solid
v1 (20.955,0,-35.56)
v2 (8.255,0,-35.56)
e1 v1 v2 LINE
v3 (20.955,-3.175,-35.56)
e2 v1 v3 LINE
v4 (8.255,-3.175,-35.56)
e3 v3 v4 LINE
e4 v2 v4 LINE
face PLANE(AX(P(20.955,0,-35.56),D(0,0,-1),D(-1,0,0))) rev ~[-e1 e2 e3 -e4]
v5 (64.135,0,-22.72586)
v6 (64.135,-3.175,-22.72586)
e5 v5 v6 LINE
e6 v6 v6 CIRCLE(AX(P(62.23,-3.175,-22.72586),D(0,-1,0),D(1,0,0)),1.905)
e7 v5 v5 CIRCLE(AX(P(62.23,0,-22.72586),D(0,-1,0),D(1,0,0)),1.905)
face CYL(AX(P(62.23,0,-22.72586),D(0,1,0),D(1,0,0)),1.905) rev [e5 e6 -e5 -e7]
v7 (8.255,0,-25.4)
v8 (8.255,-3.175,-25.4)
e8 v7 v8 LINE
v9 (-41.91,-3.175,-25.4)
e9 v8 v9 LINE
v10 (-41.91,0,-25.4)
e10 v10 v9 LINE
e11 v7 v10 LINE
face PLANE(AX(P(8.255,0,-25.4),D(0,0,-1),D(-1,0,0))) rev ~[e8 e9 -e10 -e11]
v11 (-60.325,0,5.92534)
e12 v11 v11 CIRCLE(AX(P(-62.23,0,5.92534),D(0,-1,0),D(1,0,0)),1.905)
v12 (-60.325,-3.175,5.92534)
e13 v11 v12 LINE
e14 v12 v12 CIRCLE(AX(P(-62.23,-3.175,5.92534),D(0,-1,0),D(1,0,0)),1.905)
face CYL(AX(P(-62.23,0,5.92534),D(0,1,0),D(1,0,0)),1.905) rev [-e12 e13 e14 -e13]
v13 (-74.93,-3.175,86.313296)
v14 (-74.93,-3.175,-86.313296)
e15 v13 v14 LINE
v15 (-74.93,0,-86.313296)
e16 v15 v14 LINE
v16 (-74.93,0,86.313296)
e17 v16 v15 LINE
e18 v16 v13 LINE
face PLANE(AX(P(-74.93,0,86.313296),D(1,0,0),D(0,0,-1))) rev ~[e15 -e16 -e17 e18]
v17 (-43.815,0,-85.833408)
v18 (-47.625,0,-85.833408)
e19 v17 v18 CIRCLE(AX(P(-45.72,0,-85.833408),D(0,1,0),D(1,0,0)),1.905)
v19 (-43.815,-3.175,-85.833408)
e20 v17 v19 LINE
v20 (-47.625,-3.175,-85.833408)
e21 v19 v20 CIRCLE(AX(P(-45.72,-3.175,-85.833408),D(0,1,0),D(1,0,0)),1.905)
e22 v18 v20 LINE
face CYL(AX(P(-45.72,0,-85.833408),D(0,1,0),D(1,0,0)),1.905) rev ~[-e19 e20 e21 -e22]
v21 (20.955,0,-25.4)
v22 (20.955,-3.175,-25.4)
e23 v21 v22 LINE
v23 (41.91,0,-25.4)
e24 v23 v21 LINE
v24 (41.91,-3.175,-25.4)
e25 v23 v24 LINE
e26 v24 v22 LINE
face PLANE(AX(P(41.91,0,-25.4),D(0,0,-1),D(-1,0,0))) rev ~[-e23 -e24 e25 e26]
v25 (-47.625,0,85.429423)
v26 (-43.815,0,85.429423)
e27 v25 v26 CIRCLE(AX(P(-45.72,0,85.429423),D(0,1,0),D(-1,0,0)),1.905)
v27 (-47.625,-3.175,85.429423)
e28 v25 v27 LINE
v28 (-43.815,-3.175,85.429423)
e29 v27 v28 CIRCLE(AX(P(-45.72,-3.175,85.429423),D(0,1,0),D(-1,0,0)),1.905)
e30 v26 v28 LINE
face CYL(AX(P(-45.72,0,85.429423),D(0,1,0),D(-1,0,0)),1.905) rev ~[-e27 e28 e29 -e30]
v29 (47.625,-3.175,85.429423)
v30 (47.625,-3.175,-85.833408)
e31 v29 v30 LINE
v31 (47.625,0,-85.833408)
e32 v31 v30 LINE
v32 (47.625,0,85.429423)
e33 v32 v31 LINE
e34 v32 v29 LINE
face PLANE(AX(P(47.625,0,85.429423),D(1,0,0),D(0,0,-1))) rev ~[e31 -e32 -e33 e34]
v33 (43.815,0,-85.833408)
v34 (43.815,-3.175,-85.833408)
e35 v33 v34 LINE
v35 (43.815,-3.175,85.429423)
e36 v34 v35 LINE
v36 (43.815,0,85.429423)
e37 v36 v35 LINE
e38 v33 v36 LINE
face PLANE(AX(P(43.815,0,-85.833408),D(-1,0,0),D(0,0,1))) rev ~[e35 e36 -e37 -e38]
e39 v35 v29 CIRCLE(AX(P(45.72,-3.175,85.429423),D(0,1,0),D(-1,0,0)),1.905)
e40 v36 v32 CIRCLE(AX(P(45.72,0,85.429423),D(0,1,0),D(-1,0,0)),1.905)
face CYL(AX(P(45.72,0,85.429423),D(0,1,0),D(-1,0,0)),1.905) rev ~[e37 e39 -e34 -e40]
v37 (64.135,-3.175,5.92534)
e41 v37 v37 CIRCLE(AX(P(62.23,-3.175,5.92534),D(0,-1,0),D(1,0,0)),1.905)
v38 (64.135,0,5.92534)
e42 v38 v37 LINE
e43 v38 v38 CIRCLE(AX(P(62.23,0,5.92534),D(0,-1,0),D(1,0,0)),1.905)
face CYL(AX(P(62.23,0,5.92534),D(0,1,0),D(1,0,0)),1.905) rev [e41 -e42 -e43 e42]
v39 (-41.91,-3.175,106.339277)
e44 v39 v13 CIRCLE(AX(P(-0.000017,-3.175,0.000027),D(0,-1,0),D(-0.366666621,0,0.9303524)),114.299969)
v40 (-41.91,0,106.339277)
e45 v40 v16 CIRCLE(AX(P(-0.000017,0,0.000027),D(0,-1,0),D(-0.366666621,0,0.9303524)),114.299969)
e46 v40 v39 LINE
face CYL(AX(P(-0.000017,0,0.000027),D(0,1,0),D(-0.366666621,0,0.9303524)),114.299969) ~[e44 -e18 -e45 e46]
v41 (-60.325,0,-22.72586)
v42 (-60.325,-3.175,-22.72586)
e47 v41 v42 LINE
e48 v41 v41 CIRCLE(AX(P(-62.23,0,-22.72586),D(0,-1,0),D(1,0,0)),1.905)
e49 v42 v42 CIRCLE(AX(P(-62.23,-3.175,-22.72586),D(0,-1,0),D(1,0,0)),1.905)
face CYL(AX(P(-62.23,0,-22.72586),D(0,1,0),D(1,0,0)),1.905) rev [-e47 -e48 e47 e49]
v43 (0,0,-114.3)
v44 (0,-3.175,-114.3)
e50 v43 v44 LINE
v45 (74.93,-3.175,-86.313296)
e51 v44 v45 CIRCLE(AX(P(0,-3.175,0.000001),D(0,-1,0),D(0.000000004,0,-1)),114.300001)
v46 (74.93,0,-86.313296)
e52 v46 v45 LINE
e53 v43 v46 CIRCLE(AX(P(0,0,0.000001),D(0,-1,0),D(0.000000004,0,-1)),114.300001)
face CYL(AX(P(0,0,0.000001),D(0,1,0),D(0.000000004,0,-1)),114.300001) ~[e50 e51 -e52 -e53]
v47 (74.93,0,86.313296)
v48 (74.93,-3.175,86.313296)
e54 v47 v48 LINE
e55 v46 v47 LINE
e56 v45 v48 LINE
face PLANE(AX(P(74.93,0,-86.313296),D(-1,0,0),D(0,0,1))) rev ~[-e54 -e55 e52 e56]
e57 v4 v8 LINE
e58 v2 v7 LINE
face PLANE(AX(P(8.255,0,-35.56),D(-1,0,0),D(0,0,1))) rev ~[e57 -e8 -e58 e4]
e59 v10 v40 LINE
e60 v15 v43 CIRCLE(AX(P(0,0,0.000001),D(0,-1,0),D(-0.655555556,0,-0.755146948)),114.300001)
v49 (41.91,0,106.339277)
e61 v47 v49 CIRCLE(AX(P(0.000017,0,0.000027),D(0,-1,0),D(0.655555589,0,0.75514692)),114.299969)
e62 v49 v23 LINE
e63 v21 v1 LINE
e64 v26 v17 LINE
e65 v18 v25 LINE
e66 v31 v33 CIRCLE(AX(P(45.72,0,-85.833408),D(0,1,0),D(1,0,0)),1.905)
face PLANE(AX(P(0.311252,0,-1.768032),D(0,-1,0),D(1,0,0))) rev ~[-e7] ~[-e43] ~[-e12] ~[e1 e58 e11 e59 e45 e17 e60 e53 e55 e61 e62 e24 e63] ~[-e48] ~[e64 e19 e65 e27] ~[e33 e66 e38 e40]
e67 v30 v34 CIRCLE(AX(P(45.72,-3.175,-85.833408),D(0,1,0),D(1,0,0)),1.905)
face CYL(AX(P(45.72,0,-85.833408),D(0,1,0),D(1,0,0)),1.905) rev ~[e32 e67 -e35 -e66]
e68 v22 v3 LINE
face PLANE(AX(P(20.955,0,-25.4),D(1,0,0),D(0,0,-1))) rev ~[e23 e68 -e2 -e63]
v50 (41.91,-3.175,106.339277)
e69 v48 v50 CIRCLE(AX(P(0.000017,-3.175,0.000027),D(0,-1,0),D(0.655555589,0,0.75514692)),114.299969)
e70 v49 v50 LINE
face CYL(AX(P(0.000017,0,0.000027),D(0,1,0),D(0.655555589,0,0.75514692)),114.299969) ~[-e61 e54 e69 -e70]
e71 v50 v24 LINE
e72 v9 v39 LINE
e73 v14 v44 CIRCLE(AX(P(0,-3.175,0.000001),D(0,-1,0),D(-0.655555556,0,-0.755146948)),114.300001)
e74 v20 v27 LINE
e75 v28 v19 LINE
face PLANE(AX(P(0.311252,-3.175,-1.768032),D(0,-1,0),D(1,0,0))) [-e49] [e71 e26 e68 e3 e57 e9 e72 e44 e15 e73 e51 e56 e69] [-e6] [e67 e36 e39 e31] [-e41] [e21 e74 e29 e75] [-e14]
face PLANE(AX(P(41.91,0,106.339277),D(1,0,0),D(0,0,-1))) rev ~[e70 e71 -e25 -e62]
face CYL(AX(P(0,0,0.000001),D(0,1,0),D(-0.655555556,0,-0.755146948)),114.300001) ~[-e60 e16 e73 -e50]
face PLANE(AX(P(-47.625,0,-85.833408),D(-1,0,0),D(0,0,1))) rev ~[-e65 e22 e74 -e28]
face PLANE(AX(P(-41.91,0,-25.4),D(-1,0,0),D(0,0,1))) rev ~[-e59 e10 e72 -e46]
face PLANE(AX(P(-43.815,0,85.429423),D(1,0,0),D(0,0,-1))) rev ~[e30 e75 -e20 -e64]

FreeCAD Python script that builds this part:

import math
import FreeCAD as App
import Part
import Sketcher
Q = App.Units.Quantity

doc = App.newDocument("Part")
body = doc.addObject("PartDesign::Body", "Body")

# Sketch on XZ plane
sketch1 = doc.addObject("Sketcher::SketchObject", "Sketch")
body.addObject(sketch1)
sketch1.AttachmentSupport = (doc.XZ_Plane, [""])
sketch1.MapMode = "FlatFace"
sketch1.addGeometry([
    Part.LineSegment(App.Vector(-41.91, -25.4, 0), App.Vector(-41.91, 106.339277, 0)),  # 0
    Part.ArcOfCircle(Part.Circle(App.Vector(-0.000017, 0.000027, 0), App.Vector(0, 0, 1), 114.299969), math.radians(111.510185), math.radians(130.961791)),  # 1
    Part.LineSegment(App.Vector(-74.93, 86.313296, 0), App.Vector(-74.93, -86.313296, 0)),  # 2
    Part.ArcOfCircle(Part.Circle(App.Vector(0, 0.000001, 0), App.Vector(0, 0, 1), 114.300001), math.radians(-130.961789), math.radians(-90)),  # 3
    Part.ArcOfCircle(Part.Circle(App.Vector(0, 0.000001, 0), App.Vector(0, 0, 1), 114.300001), math.radians(-90), math.radians(-49.038211)),  # 4
    Part.LineSegment(App.Vector(74.93, -86.313296, 0), App.Vector(74.93, 86.313296, 0)),  # 5
    Part.ArcOfCircle(Part.Circle(App.Vector(0.000017, 0.000027, 0), App.Vector(0, 0, 1), 114.299969), math.radians(49.038209), math.radians(68.489815)),  # 6
    Part.LineSegment(App.Vector(41.91, 106.339277, 0), App.Vector(41.91, -25.4, 0)),  # 7
    Part.LineSegment(App.Vector(41.91, -25.4, 0), App.Vector(20.955, -25.4, 0)),  # 8
    Part.LineSegment(App.Vector(20.955, -25.4, 0), App.Vector(20.955, -35.56, 0)),  # 9
    Part.LineSegment(App.Vector(20.955, -35.56, 0), App.Vector(8.255, -35.56, 0)),  # 10
    Part.LineSegment(App.Vector(8.255, -35.56, 0), App.Vector(8.255, -25.4, 0)),  # 11
    Part.LineSegment(App.Vector(8.255, -25.4, 0), App.Vector(-41.91, -25.4, 0)),  # 12
    Part.Circle(App.Vector(-62.23, -22.72586, 0), App.Vector(0, 0, 1), 1.905),  # 13
    Part.Circle(App.Vector(62.23, -22.72586, 0), App.Vector(0, 0, 1), 1.905),  # 14
    Part.Circle(App.Vector(-62.23, 5.92534, 0), App.Vector(0, 0, 1), 1.905),  # 15
    Part.ArcOfCircle(Part.Circle(App.Vector(-45.72, -85.833408, 0), App.Vector(0, 0, 1), 1.905), math.radians(180), math.radians(360)),  # 16
    Part.LineSegment(App.Vector(-47.625, -85.833408, 0), App.Vector(-47.625, 85.429423, 0)),  # 17
    Part.ArcOfCircle(Part.Circle(App.Vector(-45.72, 85.429423, 0), App.Vector(0, 0, 1), 1.905), math.radians(0), math.radians(180)),  # 18
    Part.LineSegment(App.Vector(-43.815, 85.429423, 0), App.Vector(-43.815, -85.833408, 0)),  # 19
    Part.LineSegment(App.Vector(43.815, -85.833408, 0), App.Vector(43.815, 85.429423, 0)),  # 20
    Part.ArcOfCircle(Part.Circle(App.Vector(45.72, 85.429423, 0), App.Vector(0, 0, 1), 1.905), math.radians(0), math.radians(180)),  # 21
    Part.LineSegment(App.Vector(47.625, 85.429423, 0), App.Vector(47.625, -85.833408, 0)),  # 22
    Part.ArcOfCircle(Part.Circle(App.Vector(45.72, -85.833408, 0), App.Vector(0, 0, 1), 1.905), math.radians(180), math.radians(360)),  # 23
    Part.Circle(App.Vector(62.23, 5.92534, 0), App.Vector(0, 0, 1), 1.905),  # 24
], False)
sketch1.addConstraint([
    Sketcher.Constraint("Coincident", 0, 2, 1, 1),
    Sketcher.Constraint("Coincident", 1, 2, 2, 1),
    Sketcher.Constraint("Coincident", 2, 2, 3, 1),
    Sketcher.Constraint("Tangent", 3, 2, 4, 1),
    Sketcher.Constraint("Coincident", 4, 2, 5, 1),
    Sketcher.Constraint("Coincident", 5, 2, 6, 1),
    Sketcher.Constraint("Coincident", 6, 2, 7, 1),
    Sketcher.Constraint("Coincident", 7, 2, 8, 1),
    Sketcher.Constraint("Coincident", 8, 2, 9, 1),
    Sketcher.Constraint("Coincident", 9, 2, 10, 1),
    Sketcher.Constraint("Coincident", 10, 2, 11, 1),
    Sketcher.Constraint("Coincident", 11, 2, 12, 1),
    Sketcher.Constraint("Coincident", 12, 2, 0, 1),
    Sketcher.Constraint("Tangent", 16, 1, 17, 1),
    Sketcher.Constraint("Tangent", 17, 2, 18, 2),
    Sketcher.Constraint("Tangent", 18, 1, 19, 1),
    Sketcher.Constraint("Tangent", 19, 2, 16, 2),
    Sketcher.Constraint("Tangent", 20, 2, 21, 2),
    Sketcher.Constraint("Tangent", 21, 1, 22, 1),
    Sketcher.Constraint("Tangent", 22, 2, 23, 2),
    Sketcher.Constraint("Tangent", 23, 1, 20, 1),
    Sketcher.Constraint("Vertical", 0),
    Sketcher.Constraint("Vertical", 2),
    Sketcher.Constraint("Vertical", 5),
    Sketcher.Constraint("Vertical", 7),
    Sketcher.Constraint("Horizontal", 8),
    Sketcher.Constraint("Vertical", 9),
    Sketcher.Constraint("Horizontal", 10),
    Sketcher.Constraint("Vertical", 11),
    Sketcher.Constraint("Horizontal", 12),
    Sketcher.Constraint("Vertical", 17),
    Sketcher.Constraint("Vertical", 19),
    Sketcher.Constraint("Vertical", 20),
    Sketcher.Constraint("Vertical", 22),
    Sketcher.Constraint("Coincident", 3, 3, -1, 1),
    Sketcher.Constraint("Equal", 3, 4),
    Sketcher.Constraint("Equal", 1, 6),
    Sketcher.Constraint("Equal", 13, 14),
    Sketcher.Constraint("Equal", 14, 15),
    Sketcher.Constraint("Equal", 15, 16),
    Sketcher.Constraint("Equal", 18, 21),
    Sketcher.Constraint("Equal", 23, 24),
    Sketcher.Constraint("Symmetric", 1, 2, 4, 2, -1, 1),
    Sketcher.Constraint("Symmetric", 1, 3, 6, 3, -2),
    Sketcher.Constraint("Symmetric", 13, 3, 14, 3, -2),
    Sketcher.Constraint("Symmetric", 18, 3, 21, 3, -2),
    Sketcher.Constraint("Symmetric", 15, 3, 24, 3, -2),
    Sketcher.Constraint("Symmetric", 7, 2, 12, 2, -2),
    Sketcher.Constraint("PointOnObject", 3, 2, -2),
    Sketcher.Constraint("Horizontal", 16, 3, 23, 3),
    Sketcher.Constraint("Vertical", 13, 3, 15, 3),
    Sketcher.Constraint("Radius", 3, Q("4.5 in")),
    Sketcher.Constraint("Diameter", 13, Q("0.15 in")),
    Sketcher.Constraint("DistanceX", 10, 2, 10, 1, Q("0.5 in")),
    Sketcher.Constraint("DistanceY", 9, 2, 9, 1, Q("0.4 in")),
    Sketcher.Constraint("DistanceY", 7, 2, -1, 1, Q("1 in")),
    Sketcher.Constraint("DistanceX", 16, 3, -1, 1, Q("1.8 in")),
    Sketcher.Constraint("DistanceX", 13, 3, 14, 3, Q("4.9 in")),
    Sketcher.Constraint("DistanceX", 15, 3, 0, 2, Q("0.8 in")),
    Sketcher.Constraint("DistanceX", 1, 2, 0, 2, Q("1.3 in")),
    Sketcher.Constraint("DistanceX", 9, 2, 23, 1, Q("0.9 in")),
    Sketcher.Constraint("Radius", 1, Q("114.299969 mm")),
    Sketcher.Constraint("DistanceY", 13, 3, 15, 3, Q("1.128 in")),
    Sketcher.Constraint("DistanceY", 17, 1, 17, 2, Q("171.262831 mm")),
    Sketcher.Constraint("DistanceY", 0, 1, 0, 2, Q("131.739277 mm")),
    Sketcher.Constraint("DistanceY", 13, 3, -1, 1, Q("22.72586 mm")),
    Sketcher.Constraint("DistanceY", 16, 3, -1, 1, Q("85.833408 mm")),
])
pad1 = doc.addObject("PartDesign::Pad", "Pad")
body.addObject(pad1)
pad1.Profile = sketch1
pad1.Length = Q("0.125 in")

doc.recompute()
